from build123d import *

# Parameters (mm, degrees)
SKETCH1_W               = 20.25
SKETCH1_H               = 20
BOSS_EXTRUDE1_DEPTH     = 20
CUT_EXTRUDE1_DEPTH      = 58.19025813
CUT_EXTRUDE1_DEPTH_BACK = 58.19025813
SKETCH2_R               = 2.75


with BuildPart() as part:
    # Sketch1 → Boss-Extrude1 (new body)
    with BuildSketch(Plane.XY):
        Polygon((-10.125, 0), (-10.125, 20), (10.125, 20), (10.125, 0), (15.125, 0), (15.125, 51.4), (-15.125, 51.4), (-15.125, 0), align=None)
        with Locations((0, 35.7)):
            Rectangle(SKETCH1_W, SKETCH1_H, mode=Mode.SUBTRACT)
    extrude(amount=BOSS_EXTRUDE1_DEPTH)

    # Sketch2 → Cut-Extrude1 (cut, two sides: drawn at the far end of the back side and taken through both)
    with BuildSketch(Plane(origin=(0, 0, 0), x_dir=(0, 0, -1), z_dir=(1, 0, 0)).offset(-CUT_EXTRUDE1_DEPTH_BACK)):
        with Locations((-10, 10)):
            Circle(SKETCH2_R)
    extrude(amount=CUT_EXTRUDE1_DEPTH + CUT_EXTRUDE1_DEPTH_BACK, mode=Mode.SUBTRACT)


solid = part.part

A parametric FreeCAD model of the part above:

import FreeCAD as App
import Part
import Sketcher

V = App.Vector
Q = App.Units.Quantity

doc = App.newDocument("Part")
body = doc.addObject("PartDesign::Body", "Body")

# Sketch on XY plane
sketch1 = body.newObject("Sketcher::SketchObject", "Sketch")
sketch1.AttachmentSupport = (doc.getObject("XY_Plane"), [""])
sketch1.MapMode = "FlatFace"
sketch1.addGeometry(Part.LineSegment(V(-10, 0, 0), V(-10, 20, 0)), False)
sketch1.addGeometry(Part.LineSegment(V(-10, 20, 0), V(10, 20, 0)), False)
sketch1.addGeometry(Part.LineSegment(V(10, 20, 0), V(10, 0, 0)), False)
sketch1.addGeometry(Part.LineSegment(V(10, 0, 0), V(15, 0, 0)), False)
sketch1.addGeometry(Part.LineSegment(V(15, 0, 0), V(15, 51, 0)), False)
sketch1.addGeometry(Part.LineSegment(V(15, 51, 0), V(-15, 51, 0)), False)
sketch1.addGeometry(Part.LineSegment(V(-15, 51, 0), V(-15, 0, 0)), False)
sketch1.addGeometry(Part.LineSegment(V(-15, 0, 0), V(-10, 0, 0)), False)
sketch1.addGeometry(Part.LineSegment(V(10, 26, 0), V(-10, 26, 0)), False)
sketch1.addGeometry(Part.LineSegment(V(-10, 26, 0), V(-10, 46, 0)), False)
sketch1.addGeometry(Part.LineSegment(V(-10, 46, 0), V(10, 46, 0)), False)
sketch1.addGeometry(Part.LineSegment(V(10, 46, 0), V(10, 26, 0)), False)
sketch1.addConstraint(Sketcher.Constraint("Coincident", 0, 2, 1, 1))
sketch1.addConstraint(Sketcher.Constraint("Coincident", 1, 2, 2, 1))
sketch1.addConstraint(Sketcher.Constraint("Coincident", 2, 2, 3, 1))
sketch1.addConstraint(Sketcher.Constraint("Coincident", 3, 2, 4, 1))
sketch1.addConstraint(Sketcher.Constraint("Coincident", 4, 2, 5, 1))
sketch1.addConstraint(Sketcher.Constraint("Coincident", 5, 2, 6, 1))
sketch1.addConstraint(Sketcher.Constraint("Coincident", 6, 2, 7, 1))
sketch1.addConstraint(Sketcher.Constraint("Coincident", 7, 2, 0, 1))
sketch1.addConstraint(Sketcher.Constraint("Coincident", 8, 2, 9, 1))
sketch1.addConstraint(Sketcher.Constraint("Coincident", 9, 2, 10, 1))
sketch1.addConstraint(Sketcher.Constraint("Coincident", 10, 2, 11, 1))
sketch1.addConstraint(Sketcher.Constraint("Coincident", 11, 2, 8, 1))
sketch1.addConstraint(Sketcher.Constraint("Vertical", 0))
sketch1.addConstraint(Sketcher.Constraint("Horizontal", 1))
sketch1.addConstraint(Sketcher.Constraint("Vertical", 2))
sketch1.addConstraint(Sketcher.Constraint("Horizontal", 3))
sketch1.addConstraint(Sketcher.Constraint("Vertical", 4))
sketch1.addConstraint(Sketcher.Constraint("Horizontal", 5))
sketch1.addConstraint(Sketcher.Constraint("Vertical", 6))
sketch1.addConstraint(Sketcher.Constraint("Horizontal", 7))
sketch1.addConstraint(Sketcher.Constraint("Horizontal", 8))
sketch1.addConstraint(Sketcher.Constraint("Vertical", 9))
sketch1.addConstraint(Sketcher.Constraint("Horizontal", 10))
sketch1.addConstraint(Sketcher.Constraint("Vertical", 11))
sketch1.addConstraint(Sketcher.Constraint("Symmetric", 3, 2, 6, 2, -1, 1))
sketch1.addConstraint(Sketcher.Constraint("Symmetric", 2, 2, 7, 2, -2))
sketch1.addConstraint(Sketcher.Constraint("Vertical", 7, 2, 8, 2))
sketch1.addConstraint(Sketcher.Constraint("Vertical", 2, 2, 10, 2))
sketch1.addConstraint(Sketcher.Constraint("Equal", 2, 9))
sketch1.addConstraint(Sketcher.Constraint("DistanceX", 3, 1, 3, 2, Q("5 mm")))
sketch1.addConstraint(Sketcher.Constraint("DistanceY", 0, 1, 0, 2, Q("20 mm")))
sketch1.addConstraint(Sketcher.Constraint("DistanceY", 4, 1, 4, 2, Q("51.4 mm")))
sketch1.addConstraint(Sketcher.Constraint("DistanceX", 1, 1, 1, 2, Q("20.25 mm")))
sketch1.addConstraint(Sketcher.Constraint("DistanceY", -1, 1, 8, 2, Q("25.7 mm")))
pad1 = body.newObject("PartDesign::Pad", "Pad")
pad1.Profile = sketch1
pad1.Length = 20

# Sketch on YZ plane
sketch2 = body.newObject("Sketcher::SketchObject", "Sketch001")
sketch2.AttachmentSupport = (doc.getObject("YZ_Plane"), [""])
sketch2.MapMode = "FlatFace"
sketch2.addGeometry(Part.Circle(V(10, 10, 0), V(0, 0, 1), 2.8), False)
sketch2.addConstraint(Sketcher.Constraint("Diameter", 0, Q("5.5 mm")))
sketch2.addConstraint(Sketcher.Constraint("DistanceX", -1, 1, 0, 3, Q("10 mm")))
sketch2.addConstraint(Sketcher.Constraint("DistanceY", -1, 1, 0, 3, Q("10 mm")))
pocket1 = body.newObject("PartDesign::Pocket", "Pocket")
pocket1.Profile = sketch2
pocket1.Type = "ThroughAll"
pocket1.Midplane = True

doc.recompute()
